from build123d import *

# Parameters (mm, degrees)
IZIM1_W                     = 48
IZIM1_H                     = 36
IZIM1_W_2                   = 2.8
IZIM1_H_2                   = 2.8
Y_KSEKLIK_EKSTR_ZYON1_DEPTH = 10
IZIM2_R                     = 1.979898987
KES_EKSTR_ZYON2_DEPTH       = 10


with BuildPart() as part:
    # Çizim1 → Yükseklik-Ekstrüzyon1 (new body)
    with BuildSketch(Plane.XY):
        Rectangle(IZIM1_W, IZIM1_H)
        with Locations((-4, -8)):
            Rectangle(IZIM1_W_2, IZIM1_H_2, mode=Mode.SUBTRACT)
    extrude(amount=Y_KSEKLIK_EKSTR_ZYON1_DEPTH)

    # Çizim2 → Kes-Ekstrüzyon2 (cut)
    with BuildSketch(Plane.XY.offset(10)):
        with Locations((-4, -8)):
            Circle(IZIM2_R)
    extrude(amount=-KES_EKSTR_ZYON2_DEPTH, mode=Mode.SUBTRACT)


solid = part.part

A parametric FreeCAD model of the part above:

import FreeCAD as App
import Part
import Sketcher

V = App.Vector


def add_polygon(sketch, points):
    """Adds a closed chain of lines whose ends are joined by coincident constraints."""
    first, n = sketch.GeometryCount, len(points)
    for a, b in zip(points, points[1:] + points[:1]):
        sketch.addGeometry(Part.LineSegment(App.Vector(*a, 0), App.Vector(*b, 0)), False)
    for i in range(n):
        sketch.addConstraint(Sketcher.Constraint("Coincident", first + i, 2, first + (i + 1) % n, 1))

doc = App.newDocument("Part")
params = doc.addObject("Spreadsheet::Sheet", "Params")
for row, (alias, value) in enumerate([
    ("sketch1_width", "48 mm"),
    ("sketch1_height", "36 mm"),
    ("sketch1_width2", "2.8 mm"),
    ("pad1_length", "10 mm"),
    ("pocket1_length", "10 mm"),
], start=1):
    params.set(f"A{row}", alias)
    params.set(f"B{row}", "=" + value)
    params.setAlias(f"B{row}", alias)

body = doc.addObject("PartDesign::Body", "Body")

# Sketch on XY plane
sketch1 = body.newObject("Sketcher::SketchObject", "Sketch")
sketch1.AttachmentSupport = (doc.getObject("XY_Plane"), [""])
sketch1.MapMode = "FlatFace"
add_polygon(sketch1, [(-24, 18), (-24, -18), (24, -18), (24, 18)])  # lines 0-3
add_polygon(sketch1, [(-2.6, -9.4), (-5.4, -9.4), (-5.4, -6.6), (-2.6, -6.6)])  # lines 4-7
sketch1.addConstraint([
    Sketcher.Constraint("Vertical", 0),
    Sketcher.Constraint("Horizontal", 1),
    Sketcher.Constraint("Vertical", 2),
    Sketcher.Constraint("Horizontal", 3),
    Sketcher.Constraint("Horizontal", 4),
    Sketcher.Constraint("Vertical", 5),
    Sketcher.Constraint("Horizontal", 6),
    Sketcher.Constraint("Vertical", 7),
    Sketcher.Constraint("Symmetric", 0, 2, 2, 2, -1, 1),
    Sketcher.Constraint("Equal", 6, 5),
    Sketcher.Constraint("DistanceX", 1, 1, 1, 2, 48.0),
    Sketcher.Constraint("DistanceY", 0, 2, 0, 1, 36.0),
    Sketcher.Constraint("DistanceX", 4, 2, 4, 1, 2.8),
    Sketcher.Constraint("DistanceX", 4, 2, -1, 1, 5.4),
    Sketcher.Constraint("DistanceY", 4, 2, -1, 1, 9.4),
])
sketch1.setExpression("Constraints[18]", "Params.sketch1_width")
sketch1.setExpression("Constraints[19]", "Params.sketch1_height")
sketch1.setExpression("Constraints[20]", "Params.sketch1_width2")
pad1 = body.newObject("PartDesign::Pad", "Pad")
pad1.Profile = sketch1
pad1.setExpression("Length", "Params.pad1_length")

# Sketch on XY plane
sketch2 = body.newObject("Sketcher::SketchObject", "Sketch001")
sketch2.AttachmentSupport = (doc.getObject("XY_Plane"), [""])
sketch2.MapMode = "FlatFace"
sketch2.AttachmentOffset = App.Placement(V(0, 0, 10), App.Rotation())
sketch2.addGeometry(Part.Circle(V(-4, -8, 0), V(0, 0, 1), 1.979899), False)
sketch2.addConstraint([
    Sketcher.Constraint("DistanceX", 0, 3, -1, 1, 4.0),
    Sketcher.Constraint("DistanceY", 0, 3, -1, 1, 8.0),
    Sketcher.Constraint("Diameter", 0, 3.959798),
])
pocket1 = body.newObject("PartDesign::Pocket", "Pocket")
pocket1.Profile = sketch2
pocket1.setExpression("Length", "Params.pocket1_length")

doc.recompute()
